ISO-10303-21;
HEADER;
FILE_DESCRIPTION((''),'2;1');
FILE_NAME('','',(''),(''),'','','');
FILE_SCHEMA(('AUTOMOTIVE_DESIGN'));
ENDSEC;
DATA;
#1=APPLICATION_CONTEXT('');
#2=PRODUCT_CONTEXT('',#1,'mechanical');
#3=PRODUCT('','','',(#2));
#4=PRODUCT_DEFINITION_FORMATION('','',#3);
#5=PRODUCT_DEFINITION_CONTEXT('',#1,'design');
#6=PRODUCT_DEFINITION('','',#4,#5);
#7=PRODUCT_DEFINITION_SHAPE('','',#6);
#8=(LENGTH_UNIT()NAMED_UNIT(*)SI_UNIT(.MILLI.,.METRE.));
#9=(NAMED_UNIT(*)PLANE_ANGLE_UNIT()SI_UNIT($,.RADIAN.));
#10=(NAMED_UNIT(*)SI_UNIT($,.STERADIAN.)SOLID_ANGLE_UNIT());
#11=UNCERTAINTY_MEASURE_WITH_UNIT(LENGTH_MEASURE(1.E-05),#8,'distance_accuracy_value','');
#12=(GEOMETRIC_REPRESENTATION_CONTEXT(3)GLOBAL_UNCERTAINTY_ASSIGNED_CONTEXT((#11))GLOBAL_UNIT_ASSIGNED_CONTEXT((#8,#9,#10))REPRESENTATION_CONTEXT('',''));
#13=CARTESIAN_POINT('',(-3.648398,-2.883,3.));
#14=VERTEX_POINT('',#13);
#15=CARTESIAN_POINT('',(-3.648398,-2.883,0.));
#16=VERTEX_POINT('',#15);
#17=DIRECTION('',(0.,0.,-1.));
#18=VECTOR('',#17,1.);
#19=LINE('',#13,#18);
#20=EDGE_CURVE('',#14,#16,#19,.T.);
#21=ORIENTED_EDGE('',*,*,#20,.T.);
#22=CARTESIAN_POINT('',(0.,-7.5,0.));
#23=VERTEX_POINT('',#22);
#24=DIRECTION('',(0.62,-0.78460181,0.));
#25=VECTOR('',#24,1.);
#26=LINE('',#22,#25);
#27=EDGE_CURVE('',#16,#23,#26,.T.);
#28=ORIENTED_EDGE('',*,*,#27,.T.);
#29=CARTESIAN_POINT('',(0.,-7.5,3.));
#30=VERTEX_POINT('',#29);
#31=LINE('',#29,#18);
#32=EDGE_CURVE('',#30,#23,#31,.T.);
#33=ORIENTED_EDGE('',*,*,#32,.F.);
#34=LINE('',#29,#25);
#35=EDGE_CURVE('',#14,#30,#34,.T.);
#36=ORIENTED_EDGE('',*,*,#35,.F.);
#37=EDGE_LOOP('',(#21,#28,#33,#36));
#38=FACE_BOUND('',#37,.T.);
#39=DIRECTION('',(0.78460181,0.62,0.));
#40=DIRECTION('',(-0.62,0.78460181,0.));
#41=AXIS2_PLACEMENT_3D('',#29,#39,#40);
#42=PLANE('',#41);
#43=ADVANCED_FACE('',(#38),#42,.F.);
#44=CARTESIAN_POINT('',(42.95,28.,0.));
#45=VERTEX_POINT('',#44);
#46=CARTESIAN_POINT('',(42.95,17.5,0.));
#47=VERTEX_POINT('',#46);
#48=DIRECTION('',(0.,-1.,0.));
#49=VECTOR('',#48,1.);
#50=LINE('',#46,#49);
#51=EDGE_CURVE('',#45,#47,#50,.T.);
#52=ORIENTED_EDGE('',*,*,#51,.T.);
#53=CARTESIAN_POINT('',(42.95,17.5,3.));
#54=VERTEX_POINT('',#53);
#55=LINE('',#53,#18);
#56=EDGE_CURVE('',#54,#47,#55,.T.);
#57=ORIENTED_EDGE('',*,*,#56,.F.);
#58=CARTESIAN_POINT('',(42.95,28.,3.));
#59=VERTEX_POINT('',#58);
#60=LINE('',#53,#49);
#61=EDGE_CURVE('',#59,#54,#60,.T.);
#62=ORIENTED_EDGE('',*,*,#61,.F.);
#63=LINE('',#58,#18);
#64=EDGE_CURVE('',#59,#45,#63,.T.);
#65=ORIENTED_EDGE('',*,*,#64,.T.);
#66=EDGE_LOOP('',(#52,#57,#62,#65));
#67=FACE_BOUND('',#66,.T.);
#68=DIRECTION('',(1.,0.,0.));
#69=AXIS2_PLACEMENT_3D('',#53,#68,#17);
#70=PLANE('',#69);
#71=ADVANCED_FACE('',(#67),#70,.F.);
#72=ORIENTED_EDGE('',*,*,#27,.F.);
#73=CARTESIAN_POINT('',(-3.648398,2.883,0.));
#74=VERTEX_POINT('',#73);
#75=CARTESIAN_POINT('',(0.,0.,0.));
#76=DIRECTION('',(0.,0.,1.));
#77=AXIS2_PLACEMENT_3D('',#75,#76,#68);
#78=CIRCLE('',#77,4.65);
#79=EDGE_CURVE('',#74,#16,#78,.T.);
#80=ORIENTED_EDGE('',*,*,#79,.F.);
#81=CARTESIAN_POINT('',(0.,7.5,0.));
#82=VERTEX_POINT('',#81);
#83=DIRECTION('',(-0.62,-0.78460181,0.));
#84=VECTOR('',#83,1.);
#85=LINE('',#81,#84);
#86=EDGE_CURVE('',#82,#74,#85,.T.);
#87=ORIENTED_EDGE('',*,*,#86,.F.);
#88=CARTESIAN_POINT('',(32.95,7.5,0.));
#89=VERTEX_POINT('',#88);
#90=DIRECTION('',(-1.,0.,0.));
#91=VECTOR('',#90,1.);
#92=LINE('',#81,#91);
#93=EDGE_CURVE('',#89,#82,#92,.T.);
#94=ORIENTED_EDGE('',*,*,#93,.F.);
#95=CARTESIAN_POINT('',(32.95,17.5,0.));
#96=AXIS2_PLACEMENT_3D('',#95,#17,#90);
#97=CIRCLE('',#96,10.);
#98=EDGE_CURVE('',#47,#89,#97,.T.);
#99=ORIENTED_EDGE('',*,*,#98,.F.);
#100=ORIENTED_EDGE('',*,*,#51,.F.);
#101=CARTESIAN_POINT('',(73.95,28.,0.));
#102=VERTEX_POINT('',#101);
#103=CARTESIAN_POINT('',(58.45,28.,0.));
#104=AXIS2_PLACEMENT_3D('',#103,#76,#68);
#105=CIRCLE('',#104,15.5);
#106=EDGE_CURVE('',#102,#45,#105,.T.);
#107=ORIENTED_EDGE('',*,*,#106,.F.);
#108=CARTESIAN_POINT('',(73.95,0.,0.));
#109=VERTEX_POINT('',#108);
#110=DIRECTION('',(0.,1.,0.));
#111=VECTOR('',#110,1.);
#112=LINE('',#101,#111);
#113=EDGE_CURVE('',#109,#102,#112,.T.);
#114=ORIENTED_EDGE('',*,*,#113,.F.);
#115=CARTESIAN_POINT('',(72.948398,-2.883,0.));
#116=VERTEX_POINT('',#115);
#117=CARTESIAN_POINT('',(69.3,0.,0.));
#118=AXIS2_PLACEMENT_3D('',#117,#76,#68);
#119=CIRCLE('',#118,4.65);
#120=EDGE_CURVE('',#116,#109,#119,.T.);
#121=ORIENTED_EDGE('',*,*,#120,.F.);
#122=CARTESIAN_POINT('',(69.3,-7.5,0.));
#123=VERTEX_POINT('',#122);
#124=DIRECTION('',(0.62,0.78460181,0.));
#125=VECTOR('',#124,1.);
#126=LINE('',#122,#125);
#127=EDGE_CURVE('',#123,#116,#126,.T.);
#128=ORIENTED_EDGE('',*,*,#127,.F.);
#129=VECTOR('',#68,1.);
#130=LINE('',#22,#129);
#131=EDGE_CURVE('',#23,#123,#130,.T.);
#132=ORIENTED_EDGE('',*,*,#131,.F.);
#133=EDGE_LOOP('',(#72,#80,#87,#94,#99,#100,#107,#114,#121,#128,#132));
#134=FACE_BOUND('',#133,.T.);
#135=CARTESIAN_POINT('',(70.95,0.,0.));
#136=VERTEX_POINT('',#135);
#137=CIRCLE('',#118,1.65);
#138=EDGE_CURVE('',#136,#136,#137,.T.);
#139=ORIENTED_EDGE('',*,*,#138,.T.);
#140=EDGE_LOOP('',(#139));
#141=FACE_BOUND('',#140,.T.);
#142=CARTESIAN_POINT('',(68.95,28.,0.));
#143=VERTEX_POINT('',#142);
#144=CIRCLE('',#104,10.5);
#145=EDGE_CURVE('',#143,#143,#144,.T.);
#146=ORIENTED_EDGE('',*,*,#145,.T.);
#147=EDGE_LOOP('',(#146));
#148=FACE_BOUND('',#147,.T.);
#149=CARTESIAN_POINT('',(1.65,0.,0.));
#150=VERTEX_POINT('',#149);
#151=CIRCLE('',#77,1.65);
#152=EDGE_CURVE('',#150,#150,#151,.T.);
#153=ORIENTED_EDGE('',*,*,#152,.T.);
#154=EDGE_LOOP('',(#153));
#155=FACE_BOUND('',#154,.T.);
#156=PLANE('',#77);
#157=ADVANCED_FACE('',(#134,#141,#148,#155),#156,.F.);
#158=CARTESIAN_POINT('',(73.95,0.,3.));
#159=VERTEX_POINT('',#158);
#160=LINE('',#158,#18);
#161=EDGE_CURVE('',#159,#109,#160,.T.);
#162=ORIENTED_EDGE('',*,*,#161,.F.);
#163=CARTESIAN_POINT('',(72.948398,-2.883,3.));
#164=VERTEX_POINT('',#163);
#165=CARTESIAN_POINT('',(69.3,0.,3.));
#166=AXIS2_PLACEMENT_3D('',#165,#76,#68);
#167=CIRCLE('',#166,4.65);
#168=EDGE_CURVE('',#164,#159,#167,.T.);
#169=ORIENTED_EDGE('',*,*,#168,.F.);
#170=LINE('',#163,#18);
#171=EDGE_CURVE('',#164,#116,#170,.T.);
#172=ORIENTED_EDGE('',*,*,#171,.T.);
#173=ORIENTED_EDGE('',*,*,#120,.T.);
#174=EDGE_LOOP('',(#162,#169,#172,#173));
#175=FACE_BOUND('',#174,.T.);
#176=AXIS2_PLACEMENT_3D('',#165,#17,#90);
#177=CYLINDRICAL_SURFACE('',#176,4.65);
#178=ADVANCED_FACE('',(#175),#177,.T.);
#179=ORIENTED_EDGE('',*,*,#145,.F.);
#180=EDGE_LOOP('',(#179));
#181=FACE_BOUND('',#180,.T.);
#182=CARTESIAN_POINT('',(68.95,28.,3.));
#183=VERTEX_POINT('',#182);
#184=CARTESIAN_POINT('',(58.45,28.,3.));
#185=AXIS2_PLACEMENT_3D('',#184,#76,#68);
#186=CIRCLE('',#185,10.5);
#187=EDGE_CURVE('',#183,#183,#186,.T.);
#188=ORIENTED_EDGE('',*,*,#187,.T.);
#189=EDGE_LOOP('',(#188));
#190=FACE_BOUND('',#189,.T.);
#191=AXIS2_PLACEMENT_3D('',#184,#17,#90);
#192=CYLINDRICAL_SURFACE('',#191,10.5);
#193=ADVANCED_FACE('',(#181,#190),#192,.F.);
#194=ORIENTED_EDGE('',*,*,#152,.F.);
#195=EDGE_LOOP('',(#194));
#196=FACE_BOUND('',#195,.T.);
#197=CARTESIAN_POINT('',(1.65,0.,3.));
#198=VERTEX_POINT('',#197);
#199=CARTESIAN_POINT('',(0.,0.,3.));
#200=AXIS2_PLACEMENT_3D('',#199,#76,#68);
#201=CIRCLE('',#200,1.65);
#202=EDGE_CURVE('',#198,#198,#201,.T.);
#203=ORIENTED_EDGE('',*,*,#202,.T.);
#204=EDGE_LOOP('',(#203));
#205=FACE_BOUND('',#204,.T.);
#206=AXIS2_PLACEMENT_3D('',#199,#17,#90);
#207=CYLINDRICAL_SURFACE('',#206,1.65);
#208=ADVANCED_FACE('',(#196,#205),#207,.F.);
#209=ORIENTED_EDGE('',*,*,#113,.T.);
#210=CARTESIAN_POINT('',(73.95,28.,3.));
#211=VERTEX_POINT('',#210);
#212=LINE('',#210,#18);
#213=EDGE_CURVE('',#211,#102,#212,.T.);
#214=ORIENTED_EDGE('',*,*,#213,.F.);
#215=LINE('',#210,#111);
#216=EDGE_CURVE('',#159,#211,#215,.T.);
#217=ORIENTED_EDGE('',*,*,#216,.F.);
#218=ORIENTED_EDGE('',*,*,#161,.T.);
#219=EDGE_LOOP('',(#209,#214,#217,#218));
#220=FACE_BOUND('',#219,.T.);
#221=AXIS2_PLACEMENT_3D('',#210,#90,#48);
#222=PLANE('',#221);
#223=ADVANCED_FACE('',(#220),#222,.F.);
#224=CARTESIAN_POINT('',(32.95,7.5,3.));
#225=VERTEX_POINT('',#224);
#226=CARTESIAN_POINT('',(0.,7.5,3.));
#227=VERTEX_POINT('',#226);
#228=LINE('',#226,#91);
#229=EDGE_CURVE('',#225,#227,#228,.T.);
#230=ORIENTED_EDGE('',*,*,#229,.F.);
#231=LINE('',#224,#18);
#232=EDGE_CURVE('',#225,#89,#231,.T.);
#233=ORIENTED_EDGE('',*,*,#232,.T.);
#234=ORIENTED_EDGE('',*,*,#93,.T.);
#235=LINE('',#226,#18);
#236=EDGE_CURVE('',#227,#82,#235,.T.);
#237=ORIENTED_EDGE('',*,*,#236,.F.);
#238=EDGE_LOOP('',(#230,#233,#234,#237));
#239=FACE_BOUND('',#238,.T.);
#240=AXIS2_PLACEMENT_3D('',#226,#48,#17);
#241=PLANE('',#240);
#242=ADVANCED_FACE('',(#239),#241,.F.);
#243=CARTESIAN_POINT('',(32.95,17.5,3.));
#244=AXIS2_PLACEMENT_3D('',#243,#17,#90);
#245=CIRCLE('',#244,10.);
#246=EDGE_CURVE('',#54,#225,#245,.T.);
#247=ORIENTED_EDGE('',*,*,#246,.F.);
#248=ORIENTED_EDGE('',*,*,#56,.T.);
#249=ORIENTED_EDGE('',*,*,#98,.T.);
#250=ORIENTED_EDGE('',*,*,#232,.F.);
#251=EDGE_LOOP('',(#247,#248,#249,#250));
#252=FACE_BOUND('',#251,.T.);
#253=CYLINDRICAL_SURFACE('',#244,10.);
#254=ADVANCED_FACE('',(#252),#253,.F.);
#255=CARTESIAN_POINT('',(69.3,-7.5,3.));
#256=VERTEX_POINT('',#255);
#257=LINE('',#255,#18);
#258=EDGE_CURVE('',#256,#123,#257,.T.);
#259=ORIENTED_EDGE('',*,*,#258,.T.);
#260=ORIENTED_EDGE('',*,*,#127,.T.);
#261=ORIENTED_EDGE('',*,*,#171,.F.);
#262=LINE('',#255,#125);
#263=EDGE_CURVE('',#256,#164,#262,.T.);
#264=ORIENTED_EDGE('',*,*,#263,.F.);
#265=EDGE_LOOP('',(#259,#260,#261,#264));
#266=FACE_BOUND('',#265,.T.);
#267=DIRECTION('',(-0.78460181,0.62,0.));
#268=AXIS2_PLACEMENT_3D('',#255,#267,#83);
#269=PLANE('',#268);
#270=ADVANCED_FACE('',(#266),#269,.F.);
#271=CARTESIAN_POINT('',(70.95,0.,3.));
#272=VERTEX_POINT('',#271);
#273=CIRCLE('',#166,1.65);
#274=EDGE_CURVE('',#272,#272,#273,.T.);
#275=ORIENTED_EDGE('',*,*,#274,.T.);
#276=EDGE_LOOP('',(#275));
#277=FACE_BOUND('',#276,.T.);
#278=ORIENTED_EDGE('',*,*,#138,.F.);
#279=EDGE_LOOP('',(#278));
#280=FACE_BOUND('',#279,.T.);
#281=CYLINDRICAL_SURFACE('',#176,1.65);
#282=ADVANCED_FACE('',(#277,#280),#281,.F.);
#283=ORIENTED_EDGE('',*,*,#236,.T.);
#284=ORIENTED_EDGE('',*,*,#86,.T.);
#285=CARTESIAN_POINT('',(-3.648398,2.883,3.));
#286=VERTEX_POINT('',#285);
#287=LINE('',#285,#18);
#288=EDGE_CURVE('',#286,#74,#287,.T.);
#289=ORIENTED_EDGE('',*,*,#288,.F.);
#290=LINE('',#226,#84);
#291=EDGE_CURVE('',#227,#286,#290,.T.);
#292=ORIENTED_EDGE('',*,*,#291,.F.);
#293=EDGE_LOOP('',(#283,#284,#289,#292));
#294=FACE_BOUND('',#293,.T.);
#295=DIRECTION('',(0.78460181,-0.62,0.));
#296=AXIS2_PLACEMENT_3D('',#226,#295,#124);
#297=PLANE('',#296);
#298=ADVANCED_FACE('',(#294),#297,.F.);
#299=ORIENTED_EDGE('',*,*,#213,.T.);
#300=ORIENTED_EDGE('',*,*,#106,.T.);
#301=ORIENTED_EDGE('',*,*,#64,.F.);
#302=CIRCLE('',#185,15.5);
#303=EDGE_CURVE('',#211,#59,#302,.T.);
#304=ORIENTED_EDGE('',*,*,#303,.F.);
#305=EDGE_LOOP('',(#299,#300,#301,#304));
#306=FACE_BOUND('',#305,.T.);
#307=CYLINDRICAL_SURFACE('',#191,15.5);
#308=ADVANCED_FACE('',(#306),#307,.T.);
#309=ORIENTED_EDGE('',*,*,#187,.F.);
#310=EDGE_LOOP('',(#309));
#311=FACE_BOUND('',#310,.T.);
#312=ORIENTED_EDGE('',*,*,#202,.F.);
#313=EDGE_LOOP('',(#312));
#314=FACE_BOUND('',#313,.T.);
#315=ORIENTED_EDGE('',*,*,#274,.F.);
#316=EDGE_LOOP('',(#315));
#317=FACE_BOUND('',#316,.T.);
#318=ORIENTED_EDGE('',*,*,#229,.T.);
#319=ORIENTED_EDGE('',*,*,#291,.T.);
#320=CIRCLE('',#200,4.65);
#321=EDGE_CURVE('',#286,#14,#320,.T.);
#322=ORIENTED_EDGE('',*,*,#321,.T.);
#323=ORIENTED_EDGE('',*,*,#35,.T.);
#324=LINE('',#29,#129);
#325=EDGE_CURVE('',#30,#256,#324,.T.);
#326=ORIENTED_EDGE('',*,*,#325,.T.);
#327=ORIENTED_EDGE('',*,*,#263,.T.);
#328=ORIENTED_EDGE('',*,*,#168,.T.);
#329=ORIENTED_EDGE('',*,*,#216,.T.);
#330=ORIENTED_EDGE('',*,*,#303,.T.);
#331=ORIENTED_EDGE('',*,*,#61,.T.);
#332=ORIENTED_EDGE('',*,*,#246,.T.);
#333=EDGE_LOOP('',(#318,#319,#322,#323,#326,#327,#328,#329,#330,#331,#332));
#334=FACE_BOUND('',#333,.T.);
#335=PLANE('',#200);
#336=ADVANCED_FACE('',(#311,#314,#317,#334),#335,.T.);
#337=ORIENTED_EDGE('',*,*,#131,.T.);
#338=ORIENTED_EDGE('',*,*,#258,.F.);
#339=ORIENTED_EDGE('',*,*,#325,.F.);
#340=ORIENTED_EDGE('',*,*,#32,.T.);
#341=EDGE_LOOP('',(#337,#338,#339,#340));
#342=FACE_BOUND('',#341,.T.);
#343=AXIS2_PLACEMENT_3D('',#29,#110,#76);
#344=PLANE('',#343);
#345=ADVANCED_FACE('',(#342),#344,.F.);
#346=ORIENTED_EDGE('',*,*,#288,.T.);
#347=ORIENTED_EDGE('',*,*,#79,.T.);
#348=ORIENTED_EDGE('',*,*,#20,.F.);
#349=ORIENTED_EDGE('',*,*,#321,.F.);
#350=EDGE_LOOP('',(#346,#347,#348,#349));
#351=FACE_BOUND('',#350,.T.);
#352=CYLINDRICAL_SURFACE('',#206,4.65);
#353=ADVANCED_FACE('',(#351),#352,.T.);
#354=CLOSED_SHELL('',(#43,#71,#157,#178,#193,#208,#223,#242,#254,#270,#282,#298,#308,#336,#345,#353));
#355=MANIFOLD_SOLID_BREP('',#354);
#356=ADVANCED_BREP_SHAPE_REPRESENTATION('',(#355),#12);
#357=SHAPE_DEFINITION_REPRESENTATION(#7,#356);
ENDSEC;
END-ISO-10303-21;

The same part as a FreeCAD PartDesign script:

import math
import FreeCAD as App
import Part
import Sketcher

V = App.Vector
Q = App.Units.Quantity

doc = App.newDocument("Part")
body = doc.addObject("PartDesign::Body", "Body")

# Sketch on XY plane
sketch1 = doc.addObject("Sketcher::SketchObject", "Sketch")
body.addObject(sketch1)
sketch1.AttachmentSupport = (doc.XY_Plane, [""])
sketch1.MapMode = "FlatFace"
sketch1.addGeometry(Part.LineSegment(V(32.95, 7.5, 0), V(0, 7.5, 0)), False)
sketch1.addGeometry(Part.LineSegment(V(0, 7.5, 0), V(-3.648398, 2.883, 0)), False)
sketch1.addGeometry(Part.ArcOfCircle(Part.Circle(V(0, 0, 0), V(0, 0, 1), 4.65), math.radians(141.683866), math.radians(218.316134)), False)
sketch1.addGeometry(Part.LineSegment(V(-3.648398, -2.883, 0), V(0, -7.5, 0)), False)
sketch1.addGeometry(Part.LineSegment(V(0, -7.5, 0), V(69.3, -7.5, 0)), False)
sketch1.addGeometry(Part.LineSegment(V(69.3, -7.5, 0), V(72.948398, -2.883, 0)), False)
sketch1.addGeometry(Part.ArcOfCircle(Part.Circle(V(69.3, 0, 0), V(0, 0, 1), 4.65), math.radians(-38.316134), math.radians(0)), False)
sketch1.addGeometry(Part.LineSegment(V(73.95, 0, 0), V(73.95, 28, 0)), False)
sketch1.addGeometry(Part.ArcOfCircle(Part.Circle(V(58.45, 28, 0), V(0, 0, 1), 15.5), math.radians(0), math.radians(180)), False)
sketch1.addGeometry(Part.LineSegment(V(42.95, 28, 0), V(42.95, 17.5, 0)), False)
sketch1.addGeometry(Part.ArcOfCircle(Part.Circle(V(32.95, 17.5, 0), V(0, 0, 1), 10), math.radians(-90), math.radians(0)), False)
sketch1.addGeometry(Part.Circle(V(69.3, 0, 0), V(0, 0, 1), 1.65), False)
sketch1.addGeometry(Part.Circle(V(0, 0, 0), V(0, 0, 1), 1.65), False)
sketch1.addGeometry(Part.Circle(V(58.45, 28, 0), V(0, 0, 1), 10.5), False)
sketch1.addConstraint(Sketcher.Constraint("Coincident", 0, 2, 1, 1))
sketch1.addConstraint(Sketcher.Constraint("Tangent", 1, 2, 2, 1))
sketch1.addConstraint(Sketcher.Constraint("Tangent", 2, 2, 3, 1))
sketch1.addConstraint(Sketcher.Constraint("Coincident", 3, 2, 4, 1))
sketch1.addConstraint(Sketcher.Constraint("Coincident", 4, 2, 5, 1))
sketch1.addConstraint(Sketcher.Constraint("Tangent", 5, 2, 6, 1))
sketch1.addConstraint(Sketcher.Constraint("Tangent", 6, 2, 7, 1))
sketch1.addConstraint(Sketcher.Constraint("Tangent", 7, 2, 8, 1))
sketch1.addConstraint(Sketcher.Constraint("Tangent", 8, 2, 9, 1))
sketch1.addConstraint(Sketcher.Constraint("Tangent", 9, 2, 10, 2))
sketch1.addConstraint(Sketcher.Constraint("Tangent", 10, 1, 0, 1))
sketch1.addConstraint(Sketcher.Constraint("Horizontal", 0))
sketch1.addConstraint(Sketcher.Constraint("Horizontal", 4))
sketch1.addConstraint(Sketcher.Constraint("Vertical", 7))
sketch1.addConstraint(Sketcher.Constraint("Vertical", 9))
sketch1.addConstraint(Sketcher.Constraint("Coincident", 2, 3, -1, 1))
sketch1.addConstraint(Sketcher.Constraint("Coincident", 12, 3, -1, 1))
sketch1.addConstraint(Sketcher.Constraint("Coincident", 11, 3, 6, 3))
sketch1.addConstraint(Sketcher.Constraint("Coincident", 13, 3, 8, 3))
sketch1.addConstraint(Sketcher.Constraint("Equal", 2, 6))
sketch1.addConstraint(Sketcher.Constraint("Equal", 11, 12))
sketch1.addConstraint(Sketcher.Constraint("Symmetric", 0, 2, 3, 2, -1, 1))
sketch1.addConstraint(Sketcher.Constraint("PointOnObject", 6, 3, -1))
sketch1.addConstraint(Sketcher.Constraint("PointOnObject", 0, 2, -2))
sketch1.addConstraint(Sketcher.Constraint("Parallel", 1, 5))
sketch1.addConstraint(Sketcher.Constraint("Diameter", 13, Q("21 mm")))
sketch1.addConstraint(Sketcher.Constraint("Radius", 10, Q("10 mm")))
sketch1.addConstraint(Sketcher.Constraint("Diameter", 11, Q("3.3 mm")))
sketch1.addConstraint(Sketcher.Constraint("Radius", 8, Q("15.5 mm")))
sketch1.addConstraint(Sketcher.Constraint("DistanceY", 7, 1, 7, 2, Q("28 mm")))
sketch1.addConstraint(Sketcher.Constraint("Radius", 2, Q("4.65 mm")))
sketch1.addConstraint(Sketcher.Constraint("DistanceX", 4, 1, 4, 2, Q("69.3 mm")))
sketch1.addConstraint(Sketcher.Constraint("DistanceY", 9, 2, 9, 1, Q("10.5 mm")))
pad1 = doc.addObject("PartDesign::Pad", "Pad")
body.addObject(pad1)
pad1.Profile = sketch1
pad1.Length = 3

doc.recompute()
